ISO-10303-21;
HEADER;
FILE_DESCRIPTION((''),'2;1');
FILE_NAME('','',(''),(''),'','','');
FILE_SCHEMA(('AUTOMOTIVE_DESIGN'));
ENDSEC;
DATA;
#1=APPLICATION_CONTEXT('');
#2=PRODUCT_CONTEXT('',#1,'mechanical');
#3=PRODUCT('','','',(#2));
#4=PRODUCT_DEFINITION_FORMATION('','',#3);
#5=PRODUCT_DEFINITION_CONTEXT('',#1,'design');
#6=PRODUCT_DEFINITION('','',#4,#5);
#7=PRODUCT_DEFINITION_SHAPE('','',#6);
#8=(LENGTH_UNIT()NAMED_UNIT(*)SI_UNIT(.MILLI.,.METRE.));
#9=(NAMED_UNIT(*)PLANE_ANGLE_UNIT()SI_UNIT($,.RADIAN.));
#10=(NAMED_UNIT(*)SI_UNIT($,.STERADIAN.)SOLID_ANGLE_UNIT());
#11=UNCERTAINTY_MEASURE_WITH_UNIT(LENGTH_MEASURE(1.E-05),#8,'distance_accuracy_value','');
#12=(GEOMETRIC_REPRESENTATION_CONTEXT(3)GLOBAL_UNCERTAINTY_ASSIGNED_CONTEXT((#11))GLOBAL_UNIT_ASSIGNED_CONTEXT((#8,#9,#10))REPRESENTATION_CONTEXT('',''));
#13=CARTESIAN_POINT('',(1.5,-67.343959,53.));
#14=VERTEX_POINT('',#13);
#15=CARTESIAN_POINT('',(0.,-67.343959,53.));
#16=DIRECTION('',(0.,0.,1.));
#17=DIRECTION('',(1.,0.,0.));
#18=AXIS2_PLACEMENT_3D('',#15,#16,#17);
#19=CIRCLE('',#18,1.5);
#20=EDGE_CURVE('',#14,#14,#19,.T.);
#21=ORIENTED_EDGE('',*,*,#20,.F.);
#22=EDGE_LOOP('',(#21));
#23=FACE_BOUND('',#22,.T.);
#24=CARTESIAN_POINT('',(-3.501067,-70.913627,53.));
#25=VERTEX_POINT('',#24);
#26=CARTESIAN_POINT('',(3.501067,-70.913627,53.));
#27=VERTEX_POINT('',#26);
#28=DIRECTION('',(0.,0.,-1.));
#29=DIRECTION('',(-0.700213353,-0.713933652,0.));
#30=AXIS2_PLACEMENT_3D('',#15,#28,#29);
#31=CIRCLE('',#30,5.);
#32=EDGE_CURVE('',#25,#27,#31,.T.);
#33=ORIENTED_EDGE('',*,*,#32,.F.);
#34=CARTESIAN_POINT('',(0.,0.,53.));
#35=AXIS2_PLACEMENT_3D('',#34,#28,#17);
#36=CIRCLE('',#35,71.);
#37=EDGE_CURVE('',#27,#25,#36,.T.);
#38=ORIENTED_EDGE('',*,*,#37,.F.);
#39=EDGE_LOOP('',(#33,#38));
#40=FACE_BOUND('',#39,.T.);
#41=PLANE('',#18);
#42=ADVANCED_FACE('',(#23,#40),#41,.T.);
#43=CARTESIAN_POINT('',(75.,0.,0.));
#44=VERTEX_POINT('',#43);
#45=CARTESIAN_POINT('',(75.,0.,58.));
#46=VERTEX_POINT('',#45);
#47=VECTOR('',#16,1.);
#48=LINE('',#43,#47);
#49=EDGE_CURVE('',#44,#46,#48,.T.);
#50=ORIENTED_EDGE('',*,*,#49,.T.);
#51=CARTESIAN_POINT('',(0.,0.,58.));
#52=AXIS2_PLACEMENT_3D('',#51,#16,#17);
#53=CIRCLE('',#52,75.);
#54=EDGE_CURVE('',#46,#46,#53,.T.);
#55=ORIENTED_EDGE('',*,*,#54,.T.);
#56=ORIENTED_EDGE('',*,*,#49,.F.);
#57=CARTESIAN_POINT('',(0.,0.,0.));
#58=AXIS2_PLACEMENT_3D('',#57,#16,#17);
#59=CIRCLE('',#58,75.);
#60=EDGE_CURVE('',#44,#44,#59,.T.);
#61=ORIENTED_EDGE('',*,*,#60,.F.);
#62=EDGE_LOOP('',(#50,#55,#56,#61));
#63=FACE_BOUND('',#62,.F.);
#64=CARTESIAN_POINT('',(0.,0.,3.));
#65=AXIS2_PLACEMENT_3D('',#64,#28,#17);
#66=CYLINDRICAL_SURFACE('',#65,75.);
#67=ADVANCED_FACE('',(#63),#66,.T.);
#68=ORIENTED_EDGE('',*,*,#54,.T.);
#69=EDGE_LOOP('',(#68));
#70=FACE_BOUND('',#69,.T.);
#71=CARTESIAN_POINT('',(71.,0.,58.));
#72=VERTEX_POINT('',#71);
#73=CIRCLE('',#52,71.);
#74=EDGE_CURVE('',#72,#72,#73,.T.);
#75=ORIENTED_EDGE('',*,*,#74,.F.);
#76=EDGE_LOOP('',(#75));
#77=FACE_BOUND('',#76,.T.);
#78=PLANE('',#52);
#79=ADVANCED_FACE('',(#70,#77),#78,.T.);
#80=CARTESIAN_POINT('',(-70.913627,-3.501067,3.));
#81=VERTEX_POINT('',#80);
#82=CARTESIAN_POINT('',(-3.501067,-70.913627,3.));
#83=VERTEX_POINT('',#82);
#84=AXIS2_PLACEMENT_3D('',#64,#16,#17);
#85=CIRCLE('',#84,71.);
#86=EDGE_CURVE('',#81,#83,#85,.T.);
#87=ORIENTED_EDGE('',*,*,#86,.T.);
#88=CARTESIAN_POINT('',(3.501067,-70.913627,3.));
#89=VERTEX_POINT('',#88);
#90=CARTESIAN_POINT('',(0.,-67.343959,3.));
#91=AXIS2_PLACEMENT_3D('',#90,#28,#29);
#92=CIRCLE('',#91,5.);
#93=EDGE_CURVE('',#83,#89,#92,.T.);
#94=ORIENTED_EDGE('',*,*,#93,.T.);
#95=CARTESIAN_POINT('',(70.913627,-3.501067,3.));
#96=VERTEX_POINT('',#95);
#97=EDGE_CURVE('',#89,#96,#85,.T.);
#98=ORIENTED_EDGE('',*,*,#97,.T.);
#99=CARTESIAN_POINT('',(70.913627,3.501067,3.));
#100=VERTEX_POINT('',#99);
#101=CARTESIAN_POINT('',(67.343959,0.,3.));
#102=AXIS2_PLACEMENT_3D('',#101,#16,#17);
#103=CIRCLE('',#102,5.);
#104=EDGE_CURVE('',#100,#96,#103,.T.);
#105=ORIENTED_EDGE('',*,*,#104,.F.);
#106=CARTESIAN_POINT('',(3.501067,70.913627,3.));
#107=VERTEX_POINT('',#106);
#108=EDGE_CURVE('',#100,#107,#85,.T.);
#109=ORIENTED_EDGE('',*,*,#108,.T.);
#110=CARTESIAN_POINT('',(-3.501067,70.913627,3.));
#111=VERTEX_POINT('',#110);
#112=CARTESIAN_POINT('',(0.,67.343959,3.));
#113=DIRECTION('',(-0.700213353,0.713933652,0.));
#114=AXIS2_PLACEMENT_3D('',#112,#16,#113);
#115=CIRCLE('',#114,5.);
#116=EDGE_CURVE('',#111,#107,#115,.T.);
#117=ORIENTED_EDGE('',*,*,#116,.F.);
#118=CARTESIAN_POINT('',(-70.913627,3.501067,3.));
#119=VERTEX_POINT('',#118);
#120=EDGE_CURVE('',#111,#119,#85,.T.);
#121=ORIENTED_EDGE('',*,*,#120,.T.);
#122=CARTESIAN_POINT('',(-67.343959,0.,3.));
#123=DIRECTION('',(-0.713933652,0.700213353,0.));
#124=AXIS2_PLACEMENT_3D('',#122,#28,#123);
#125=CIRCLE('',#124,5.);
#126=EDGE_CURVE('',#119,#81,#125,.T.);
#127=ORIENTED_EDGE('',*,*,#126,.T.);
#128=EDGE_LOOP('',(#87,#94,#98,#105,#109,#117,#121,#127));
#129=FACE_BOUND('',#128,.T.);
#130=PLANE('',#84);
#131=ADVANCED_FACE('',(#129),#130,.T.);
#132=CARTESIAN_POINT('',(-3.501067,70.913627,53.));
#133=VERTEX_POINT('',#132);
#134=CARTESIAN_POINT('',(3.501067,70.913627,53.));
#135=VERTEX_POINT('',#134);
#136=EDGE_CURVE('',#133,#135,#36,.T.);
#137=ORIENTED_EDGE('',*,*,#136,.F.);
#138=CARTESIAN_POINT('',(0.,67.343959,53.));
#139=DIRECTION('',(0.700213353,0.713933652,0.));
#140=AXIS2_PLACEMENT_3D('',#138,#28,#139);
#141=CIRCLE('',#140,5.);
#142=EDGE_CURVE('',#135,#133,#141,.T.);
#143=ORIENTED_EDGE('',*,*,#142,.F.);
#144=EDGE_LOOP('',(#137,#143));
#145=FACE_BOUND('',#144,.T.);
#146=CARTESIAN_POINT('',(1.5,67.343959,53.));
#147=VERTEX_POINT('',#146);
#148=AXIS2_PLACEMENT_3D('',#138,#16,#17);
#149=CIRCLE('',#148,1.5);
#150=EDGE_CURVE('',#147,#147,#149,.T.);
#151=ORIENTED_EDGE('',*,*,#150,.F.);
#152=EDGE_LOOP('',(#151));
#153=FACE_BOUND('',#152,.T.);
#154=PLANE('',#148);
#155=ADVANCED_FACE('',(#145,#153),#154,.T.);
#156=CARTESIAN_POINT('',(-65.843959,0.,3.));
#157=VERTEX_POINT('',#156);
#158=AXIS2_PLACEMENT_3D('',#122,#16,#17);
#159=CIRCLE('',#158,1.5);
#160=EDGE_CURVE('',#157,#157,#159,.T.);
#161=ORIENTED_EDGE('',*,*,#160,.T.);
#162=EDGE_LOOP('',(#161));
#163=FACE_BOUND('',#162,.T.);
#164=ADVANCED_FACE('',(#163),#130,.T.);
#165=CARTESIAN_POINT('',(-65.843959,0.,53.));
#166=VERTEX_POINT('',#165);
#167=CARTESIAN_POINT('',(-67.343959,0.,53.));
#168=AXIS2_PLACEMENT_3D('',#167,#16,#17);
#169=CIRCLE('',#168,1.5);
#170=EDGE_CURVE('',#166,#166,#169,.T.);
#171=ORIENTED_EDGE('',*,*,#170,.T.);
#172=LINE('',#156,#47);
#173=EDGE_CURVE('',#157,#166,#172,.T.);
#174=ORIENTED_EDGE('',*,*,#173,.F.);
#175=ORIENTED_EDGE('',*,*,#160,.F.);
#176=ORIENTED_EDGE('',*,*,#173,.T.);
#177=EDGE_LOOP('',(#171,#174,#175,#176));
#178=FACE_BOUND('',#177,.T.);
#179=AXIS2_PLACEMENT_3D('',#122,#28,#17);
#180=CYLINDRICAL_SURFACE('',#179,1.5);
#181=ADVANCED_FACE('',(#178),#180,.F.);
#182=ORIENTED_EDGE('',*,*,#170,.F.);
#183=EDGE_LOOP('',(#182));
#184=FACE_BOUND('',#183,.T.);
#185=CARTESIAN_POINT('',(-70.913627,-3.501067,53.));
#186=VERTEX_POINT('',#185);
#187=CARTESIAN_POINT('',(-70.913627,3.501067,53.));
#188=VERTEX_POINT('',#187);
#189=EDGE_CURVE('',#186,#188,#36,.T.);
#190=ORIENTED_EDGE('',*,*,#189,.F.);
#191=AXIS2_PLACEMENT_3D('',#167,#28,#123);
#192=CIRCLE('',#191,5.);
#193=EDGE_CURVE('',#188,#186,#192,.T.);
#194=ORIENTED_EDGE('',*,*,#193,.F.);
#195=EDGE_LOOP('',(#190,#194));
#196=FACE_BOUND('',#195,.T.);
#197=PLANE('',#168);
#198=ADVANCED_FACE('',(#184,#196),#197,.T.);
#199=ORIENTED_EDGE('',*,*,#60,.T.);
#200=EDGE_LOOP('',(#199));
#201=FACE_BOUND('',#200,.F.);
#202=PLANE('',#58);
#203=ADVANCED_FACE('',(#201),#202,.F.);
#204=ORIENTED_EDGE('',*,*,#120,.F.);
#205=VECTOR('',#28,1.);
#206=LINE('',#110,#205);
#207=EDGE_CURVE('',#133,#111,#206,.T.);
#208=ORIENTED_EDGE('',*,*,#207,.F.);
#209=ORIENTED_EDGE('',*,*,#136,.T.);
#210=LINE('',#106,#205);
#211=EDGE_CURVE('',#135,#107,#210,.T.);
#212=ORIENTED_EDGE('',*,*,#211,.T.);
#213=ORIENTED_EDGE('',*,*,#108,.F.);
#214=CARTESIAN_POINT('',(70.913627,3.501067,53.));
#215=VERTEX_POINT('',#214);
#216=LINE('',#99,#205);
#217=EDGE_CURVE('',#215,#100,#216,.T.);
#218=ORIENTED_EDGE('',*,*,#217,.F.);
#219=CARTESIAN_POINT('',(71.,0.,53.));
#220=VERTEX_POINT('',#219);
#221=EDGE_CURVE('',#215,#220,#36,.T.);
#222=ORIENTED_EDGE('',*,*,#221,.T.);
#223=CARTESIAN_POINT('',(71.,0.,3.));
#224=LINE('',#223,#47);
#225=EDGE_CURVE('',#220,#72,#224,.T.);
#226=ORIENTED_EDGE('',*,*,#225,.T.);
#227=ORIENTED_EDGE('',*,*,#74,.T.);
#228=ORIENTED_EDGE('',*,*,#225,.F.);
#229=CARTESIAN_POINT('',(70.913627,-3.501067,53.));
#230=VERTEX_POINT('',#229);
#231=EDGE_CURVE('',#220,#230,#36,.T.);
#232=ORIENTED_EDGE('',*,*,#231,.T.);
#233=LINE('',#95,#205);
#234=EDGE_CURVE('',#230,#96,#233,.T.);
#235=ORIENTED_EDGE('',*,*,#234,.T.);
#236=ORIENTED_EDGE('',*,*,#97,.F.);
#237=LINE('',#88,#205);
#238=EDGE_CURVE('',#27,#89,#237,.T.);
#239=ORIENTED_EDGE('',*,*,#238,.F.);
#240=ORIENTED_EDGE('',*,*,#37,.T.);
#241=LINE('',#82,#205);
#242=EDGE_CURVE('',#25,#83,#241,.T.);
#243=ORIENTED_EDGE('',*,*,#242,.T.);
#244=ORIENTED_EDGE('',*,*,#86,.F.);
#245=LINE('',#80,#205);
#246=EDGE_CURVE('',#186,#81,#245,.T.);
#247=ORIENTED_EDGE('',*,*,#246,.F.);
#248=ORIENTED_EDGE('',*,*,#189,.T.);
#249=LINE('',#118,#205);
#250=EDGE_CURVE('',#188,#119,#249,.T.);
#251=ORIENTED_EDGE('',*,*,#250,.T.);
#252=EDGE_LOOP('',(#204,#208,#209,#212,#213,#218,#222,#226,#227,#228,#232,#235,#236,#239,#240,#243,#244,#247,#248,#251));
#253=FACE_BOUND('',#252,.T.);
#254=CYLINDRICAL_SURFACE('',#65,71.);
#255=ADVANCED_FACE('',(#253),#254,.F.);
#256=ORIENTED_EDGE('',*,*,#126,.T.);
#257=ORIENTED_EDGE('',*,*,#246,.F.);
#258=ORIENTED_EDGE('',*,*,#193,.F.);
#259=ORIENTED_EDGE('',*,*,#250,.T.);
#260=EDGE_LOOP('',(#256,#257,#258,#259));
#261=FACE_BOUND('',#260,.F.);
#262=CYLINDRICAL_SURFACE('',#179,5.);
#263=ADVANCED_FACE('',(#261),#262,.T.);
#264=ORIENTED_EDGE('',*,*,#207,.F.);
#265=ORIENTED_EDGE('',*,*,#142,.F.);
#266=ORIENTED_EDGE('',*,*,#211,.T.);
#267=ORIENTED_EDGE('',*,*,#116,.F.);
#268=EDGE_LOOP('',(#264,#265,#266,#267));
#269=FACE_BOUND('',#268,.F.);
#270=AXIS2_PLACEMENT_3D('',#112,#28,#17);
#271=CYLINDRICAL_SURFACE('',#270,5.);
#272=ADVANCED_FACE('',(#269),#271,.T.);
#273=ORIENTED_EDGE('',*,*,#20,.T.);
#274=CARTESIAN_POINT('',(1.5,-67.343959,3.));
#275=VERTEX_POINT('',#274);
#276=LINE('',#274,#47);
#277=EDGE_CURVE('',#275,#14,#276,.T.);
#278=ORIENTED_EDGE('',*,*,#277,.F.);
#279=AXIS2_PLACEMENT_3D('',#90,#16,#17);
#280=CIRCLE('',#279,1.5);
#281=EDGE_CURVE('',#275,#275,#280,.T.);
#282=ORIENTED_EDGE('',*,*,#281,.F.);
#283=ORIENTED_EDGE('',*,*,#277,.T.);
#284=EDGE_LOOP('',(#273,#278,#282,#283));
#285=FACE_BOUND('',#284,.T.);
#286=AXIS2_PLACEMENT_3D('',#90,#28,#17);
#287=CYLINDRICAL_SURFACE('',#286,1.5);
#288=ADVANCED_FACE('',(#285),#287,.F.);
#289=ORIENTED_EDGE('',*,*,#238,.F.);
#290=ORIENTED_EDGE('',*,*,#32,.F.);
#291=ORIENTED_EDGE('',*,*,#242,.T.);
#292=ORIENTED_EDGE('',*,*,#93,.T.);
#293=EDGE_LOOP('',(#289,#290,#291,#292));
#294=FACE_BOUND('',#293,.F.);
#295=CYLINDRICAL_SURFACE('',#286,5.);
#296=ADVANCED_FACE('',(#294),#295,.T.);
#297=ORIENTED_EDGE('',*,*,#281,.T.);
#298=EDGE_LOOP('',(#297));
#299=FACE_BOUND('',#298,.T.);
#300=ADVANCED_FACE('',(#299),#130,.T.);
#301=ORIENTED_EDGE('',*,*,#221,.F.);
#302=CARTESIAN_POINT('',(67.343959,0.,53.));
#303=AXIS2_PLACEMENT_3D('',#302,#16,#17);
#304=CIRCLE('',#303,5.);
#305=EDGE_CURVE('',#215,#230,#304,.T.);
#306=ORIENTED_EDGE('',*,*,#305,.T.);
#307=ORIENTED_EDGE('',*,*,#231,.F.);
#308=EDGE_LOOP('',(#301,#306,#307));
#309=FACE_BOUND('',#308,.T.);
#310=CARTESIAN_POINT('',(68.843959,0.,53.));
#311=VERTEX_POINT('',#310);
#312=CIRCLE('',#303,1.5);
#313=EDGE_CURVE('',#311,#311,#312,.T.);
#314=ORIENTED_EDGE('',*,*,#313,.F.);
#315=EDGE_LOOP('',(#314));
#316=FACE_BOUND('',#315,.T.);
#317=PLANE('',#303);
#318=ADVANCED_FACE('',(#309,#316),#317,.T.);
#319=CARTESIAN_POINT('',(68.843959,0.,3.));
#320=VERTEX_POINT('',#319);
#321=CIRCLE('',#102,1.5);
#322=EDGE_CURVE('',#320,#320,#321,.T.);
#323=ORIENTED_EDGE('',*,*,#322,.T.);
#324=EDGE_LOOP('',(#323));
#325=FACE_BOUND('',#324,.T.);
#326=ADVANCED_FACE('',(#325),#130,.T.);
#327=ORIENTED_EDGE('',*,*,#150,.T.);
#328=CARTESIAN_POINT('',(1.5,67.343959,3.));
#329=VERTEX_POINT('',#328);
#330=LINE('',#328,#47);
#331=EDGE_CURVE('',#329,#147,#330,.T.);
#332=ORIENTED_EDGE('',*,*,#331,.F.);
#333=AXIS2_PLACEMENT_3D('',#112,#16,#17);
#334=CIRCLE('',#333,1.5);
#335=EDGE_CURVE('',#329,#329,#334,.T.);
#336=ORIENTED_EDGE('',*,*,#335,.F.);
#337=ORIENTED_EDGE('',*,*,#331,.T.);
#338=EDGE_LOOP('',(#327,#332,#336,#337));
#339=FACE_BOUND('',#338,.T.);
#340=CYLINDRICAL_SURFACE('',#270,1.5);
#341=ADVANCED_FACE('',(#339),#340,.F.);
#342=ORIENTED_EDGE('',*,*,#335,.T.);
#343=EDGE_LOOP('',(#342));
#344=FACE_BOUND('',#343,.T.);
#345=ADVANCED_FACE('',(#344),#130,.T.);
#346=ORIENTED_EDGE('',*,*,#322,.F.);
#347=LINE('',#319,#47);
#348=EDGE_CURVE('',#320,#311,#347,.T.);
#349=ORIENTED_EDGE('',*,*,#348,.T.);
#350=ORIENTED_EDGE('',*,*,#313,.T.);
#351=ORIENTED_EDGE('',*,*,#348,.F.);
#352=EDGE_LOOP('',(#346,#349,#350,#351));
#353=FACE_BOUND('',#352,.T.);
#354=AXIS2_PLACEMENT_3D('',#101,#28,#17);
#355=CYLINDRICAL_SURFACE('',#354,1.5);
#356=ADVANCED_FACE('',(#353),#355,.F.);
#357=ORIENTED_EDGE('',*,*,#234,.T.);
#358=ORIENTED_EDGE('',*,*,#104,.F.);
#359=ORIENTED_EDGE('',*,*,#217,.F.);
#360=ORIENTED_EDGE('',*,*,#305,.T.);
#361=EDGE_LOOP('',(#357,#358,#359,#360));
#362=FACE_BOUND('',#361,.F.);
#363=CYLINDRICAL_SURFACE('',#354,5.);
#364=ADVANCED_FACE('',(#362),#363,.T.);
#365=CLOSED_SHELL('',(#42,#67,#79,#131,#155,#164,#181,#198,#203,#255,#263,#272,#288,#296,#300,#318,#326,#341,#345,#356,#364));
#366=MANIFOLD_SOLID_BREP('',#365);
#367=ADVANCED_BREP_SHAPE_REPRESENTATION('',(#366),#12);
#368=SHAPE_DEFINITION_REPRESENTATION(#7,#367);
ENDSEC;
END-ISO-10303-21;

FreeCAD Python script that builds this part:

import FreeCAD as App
import Part
import Sketcher
from FreeCAD import Vector
Q = App.Units.Quantity

doc = App.newDocument("Part")
body = doc.addObject("PartDesign::Body", "Body")

sketch1 = doc.addObject("Sketcher::SketchObject", "Sketch")
body.addObject(sketch1)
sketch1.AttachmentSupport = (doc.XY_Plane, [""])
sketch1.MapMode = "FlatFace"
sketch1.addGeometry(Part.Circle(Vector(0, 0, 0), Vector(0, 0, 1), 75), False)
sketch1.addConstraint(Sketcher.Constraint("Coincident", 0, 3, -1, 1))
sketch1.addConstraint(Sketcher.Constraint("Diameter", 0, Q("150 mm")))
pad1 = doc.addObject("PartDesign::Pad", "Pad")
body.addObject(pad1)
pad1.Profile = sketch1
pad1.Length = 3

sketch2 = doc.addObject("Sketcher::SketchObject", "Sketch001")
body.addObject(sketch2)
sketch2.AttachmentSupport = (doc.XY_Plane, [""])
sketch2.MapMode = "FlatFace"
sketch2.AttachmentOffset = App.Placement(Vector(0, 0, 3), App.Rotation())
sketch2.addGeometry(Part.Circle(Vector(0, 0, 0), Vector(0, 0, 1), 75), False)
sketch2.addGeometry(Part.Circle(Vector(0, 0, 0), Vector(0, 0, 1), 71), False)
sketch2.addConstraint(Sketcher.Constraint("Coincident", 0, 3, -1, 1))
sketch2.addConstraint(Sketcher.Constraint("Coincident", 1, 3, -1, 1))
sketch2.addConstraint(Sketcher.Constraint("Diameter", 0, Q("150 mm")))
sketch2.addConstraint(Sketcher.Constraint("Diameter", 1, Q("142 mm")))
pad2 = doc.addObject("PartDesign::Pad", "Pad001")
body.addObject(pad2)
pad2.Profile = sketch2
pad2.Length = 55

sketch3 = doc.addObject("Sketcher::SketchObject", "Sketch002")
body.addObject(sketch3)
sketch3.AttachmentSupport = (doc.XY_Plane, [""])
sketch3.MapMode = "FlatFace"
sketch3.AttachmentOffset = App.Placement(Vector(0, 0, 3), App.Rotation())
sketch3.addGeometry(Part.Circle(Vector(0, 67.343959, 0), Vector(0, 0, 1), 5), False)
sketch3.addGeometry(Part.Circle(Vector(0, 67.343959, 0), Vector(0, 0, 1), 1.5), False)
sketch3.addGeometry(Part.Circle(Vector(-67.343959, 0, 0), Vector(0, 0, 1), 5), False)
sketch3.addGeometry(Part.Circle(Vector(-67.343959, 0, 0), Vector(0, 0, 1), 1.5), False)
sketch3.addGeometry(Part.Circle(Vector(0, -67.343959, 0), Vector(0, 0, 1), 5), False)
sketch3.addGeometry(Part.Circle(Vector(0, -67.343959, 0), Vector(0, 0, 1), 1.5), False)
sketch3.addGeometry(Part.Circle(Vector(67.343959, 0, 0), Vector(0, 0, 1), 5), False)
sketch3.addGeometry(Part.Circle(Vector(67.343959, 0, 0), Vector(0, 0, 1), 1.5), False)
sketch3.addConstraint(Sketcher.Constraint("Coincident", 1, 3, 0, 3))
sketch3.addConstraint(Sketcher.Constraint("Coincident", 3, 3, 2, 3))
sketch3.addConstraint(Sketcher.Constraint("Coincident", 5, 3, 4, 3))
sketch3.addConstraint(Sketcher.Constraint("Coincident", 7, 3, 6, 3))
sketch3.addConstraint(Sketcher.Constraint("Equal", 0, 2))
sketch3.addConstraint(Sketcher.Constraint("Equal", 1, 3))
sketch3.addConstraint(Sketcher.Constraint("Equal", 2, 4))
sketch3.addConstraint(Sketcher.Constraint("Equal", 3, 5))
sketch3.addConstraint(Sketcher.Constraint("Equal", 4, 6))
sketch3.addConstraint(Sketcher.Constraint("Equal", 5, 7))
sketch3.addConstraint(Sketcher.Constraint("Symmetric", 0, 3, 4, 3, -1, 1))
sketch3.addConstraint(Sketcher.Constraint("Symmetric", 2, 3, 6, 3, -1, 1))
sketch3.addConstraint(Sketcher.Constraint("PointOnObject", 0, 3, -2))
sketch3.addConstraint(Sketcher.Constraint("PointOnObject", 2, 3, -1))
sketch3.addConstraint(Sketcher.Constraint("Diameter", 0, Q("10 mm")))
sketch3.addConstraint(Sketcher.Constraint("Diameter", 1, Q("3 mm")))
sketch3.addConstraint(Sketcher.Constraint("DistanceY", -1, 1, 0, 3, Q("67.343959 mm")))
sketch3.addConstraint(Sketcher.Constraint("DistanceX", 2, 3, -1, 1, Q("67.343959 mm")))
pad3 = doc.addObject("PartDesign::Pad", "Pad002")
body.addObject(pad3)
pad3.Profile = sketch3
pad3.Length = 50

doc.recompute()
